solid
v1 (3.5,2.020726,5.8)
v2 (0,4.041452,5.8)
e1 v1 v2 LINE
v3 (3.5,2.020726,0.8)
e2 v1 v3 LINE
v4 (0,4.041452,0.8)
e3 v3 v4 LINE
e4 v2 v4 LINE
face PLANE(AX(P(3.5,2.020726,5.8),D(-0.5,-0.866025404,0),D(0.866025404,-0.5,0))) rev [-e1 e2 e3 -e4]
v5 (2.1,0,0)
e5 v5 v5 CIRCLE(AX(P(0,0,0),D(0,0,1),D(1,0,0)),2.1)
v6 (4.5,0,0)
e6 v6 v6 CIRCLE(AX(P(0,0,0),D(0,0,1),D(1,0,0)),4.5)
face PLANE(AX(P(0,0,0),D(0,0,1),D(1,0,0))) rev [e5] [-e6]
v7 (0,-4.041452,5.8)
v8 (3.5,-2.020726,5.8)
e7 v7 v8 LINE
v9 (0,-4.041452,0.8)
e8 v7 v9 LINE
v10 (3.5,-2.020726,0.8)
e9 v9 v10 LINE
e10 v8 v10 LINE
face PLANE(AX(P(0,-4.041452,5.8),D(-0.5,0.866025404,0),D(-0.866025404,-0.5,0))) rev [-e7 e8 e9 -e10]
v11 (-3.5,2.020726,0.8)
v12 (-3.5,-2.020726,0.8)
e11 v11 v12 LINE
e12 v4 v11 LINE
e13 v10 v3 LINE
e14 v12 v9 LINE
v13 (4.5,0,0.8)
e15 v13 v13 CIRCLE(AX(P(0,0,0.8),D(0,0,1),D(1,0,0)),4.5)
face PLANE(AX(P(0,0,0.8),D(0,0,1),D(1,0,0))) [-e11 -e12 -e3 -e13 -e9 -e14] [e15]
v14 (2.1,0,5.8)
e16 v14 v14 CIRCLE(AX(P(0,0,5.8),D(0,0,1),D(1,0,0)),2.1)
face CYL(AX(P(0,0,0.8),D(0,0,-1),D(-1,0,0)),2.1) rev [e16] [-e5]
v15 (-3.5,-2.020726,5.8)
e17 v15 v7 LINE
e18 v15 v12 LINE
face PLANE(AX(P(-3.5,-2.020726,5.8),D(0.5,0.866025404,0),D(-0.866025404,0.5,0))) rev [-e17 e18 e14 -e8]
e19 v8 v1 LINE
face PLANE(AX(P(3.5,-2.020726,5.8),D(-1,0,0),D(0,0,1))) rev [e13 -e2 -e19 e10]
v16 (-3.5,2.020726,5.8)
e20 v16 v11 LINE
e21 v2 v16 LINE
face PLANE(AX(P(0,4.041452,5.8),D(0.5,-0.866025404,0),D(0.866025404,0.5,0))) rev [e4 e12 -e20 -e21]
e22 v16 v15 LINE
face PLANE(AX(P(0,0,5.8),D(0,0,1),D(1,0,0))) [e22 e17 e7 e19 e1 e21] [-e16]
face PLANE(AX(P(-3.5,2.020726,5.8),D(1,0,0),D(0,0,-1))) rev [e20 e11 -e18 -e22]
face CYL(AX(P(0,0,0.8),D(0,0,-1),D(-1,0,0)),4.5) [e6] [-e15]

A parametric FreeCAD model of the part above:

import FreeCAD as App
import Part
import Sketcher

V = App.Vector
Q = App.Units.Quantity

doc = App.newDocument("Part")
params = doc.addObject("Spreadsheet::Sheet", "Params")
for row, (alias, value) in enumerate([
    ("sketch1_diameter", "9 mm"),
    ("sketch1_diameter2", "4.2 mm"),
    ("pad1_length", "0.8 mm"),
    ("sketch2_diameter", "4.2 mm"),
    ("pad2_length", "5 mm"),
], start=1):
    params.set(f"A{row}", alias)
    params.set(f"B{row}", "=" + value)
    params.setAlias(f"B{row}", alias)

body = doc.addObject("PartDesign::Body", "Body")

# Sketch on XY plane
sketch1 = body.newObject("Sketcher::SketchObject", "Sketch")
sketch1.AttachmentSupport = (doc.getObject("XY_Plane"), [""])
sketch1.MapMode = "FlatFace"
sketch1.addGeometry([
    Part.Circle(V(0, 0, 0), V(0, 0, 1), 4.5),
    Part.Circle(V(0, 0, 0), V(0, 0, 1), 2.1),
], False)
sketch1.addConstraint([
    Sketcher.Constraint("Coincident", 0, 3, -1, 1),
    Sketcher.Constraint("Coincident", 1, 3, -1, 1),
    Sketcher.Constraint("Diameter", 0, Q("9 mm")),
    Sketcher.Constraint("Diameter", 1, Q("4.2 mm")),
])
sketch1.setExpression("Constraints[2]", "Params.sketch1_diameter")
sketch1.setExpression("Constraints[3]", "Params.sketch1_diameter2")
pad1 = body.newObject("PartDesign::Pad", "Pad")
pad1.Profile = sketch1
pad1.setExpression("Length", "Params.pad1_length")

# Sketch on XY plane
sketch2 = body.newObject("Sketcher::SketchObject", "Sketch001")
sketch2.AttachmentSupport = (doc.getObject("XY_Plane"), [""])
sketch2.MapMode = "FlatFace"
sketch2.AttachmentOffset = App.Placement(V(0, 0, 0.8), App.Rotation())
sketch2.addGeometry([
    Part.LineSegment(V(3.5, 2, 0), V(0, 4, 0)),  # 0
    Part.LineSegment(V(0, 4, 0), V(-3.5, 2, 0)),  # 1
    Part.LineSegment(V(-3.5, 2, 0), V(-3.5, -2, 0)),  # 2
    Part.LineSegment(V(-3.5, -2, 0), V(0, -4, 0)),  # 3
    Part.LineSegment(V(0, -4, 0), V(3.5, -2, 0)),  # 4
    Part.LineSegment(V(3.5, -2, 0), V(3.5, 2, 0)),  # 5
    Part.Circle(V(0, 0, 0), V(0, 0, 1), 2.1),  # 6
], False)
sketch2.addConstraint([
    Sketcher.Constraint("Coincident", 0, 2, 1, 1),
    Sketcher.Constraint("Coincident", 1, 2, 2, 1),
    Sketcher.Constraint("Coincident", 2, 2, 3, 1),
    Sketcher.Constraint("Coincident", 3, 2, 4, 1),
    Sketcher.Constraint("Coincident", 4, 2, 5, 1),
    Sketcher.Constraint("Coincident", 5, 2, 0, 1),
    Sketcher.Constraint("Vertical", 2),
    Sketcher.Constraint("Vertical", 5),
    Sketcher.Constraint("Coincident", 6, 3, -1, 1),
    Sketcher.Constraint("Symmetric", 0, 2, 3, 2, -1, 1),
    Sketcher.Constraint("Symmetric", 1, 2, 4, 2, -1, 1),
    Sketcher.Constraint("PointOnObject", 0, 2, -2),
    Sketcher.Constraint("Parallel", 0, 3),
    Sketcher.Constraint("Horizontal", 2, 2, 4, 2),
    Sketcher.Constraint("Diameter", 6, Q("4.2 mm")),
    Sketcher.Constraint("Angle", 0, Q("150 deg")),
    Sketcher.Constraint("DistanceX", 2, 2, 4, 2, Q("7 mm")),
    Sketcher.Constraint("DistanceY", 2, 2, 2, 1, Q("4.041452 mm")),
])
sketch2.setExpression("Constraints[14]", "Params.sketch2_diameter")
pad2 = body.newObject("PartDesign::Pad", "Pad001")
pad2.Profile = sketch2
pad2.setExpression("Length", "Params.pad2_length")

doc.recompute()
